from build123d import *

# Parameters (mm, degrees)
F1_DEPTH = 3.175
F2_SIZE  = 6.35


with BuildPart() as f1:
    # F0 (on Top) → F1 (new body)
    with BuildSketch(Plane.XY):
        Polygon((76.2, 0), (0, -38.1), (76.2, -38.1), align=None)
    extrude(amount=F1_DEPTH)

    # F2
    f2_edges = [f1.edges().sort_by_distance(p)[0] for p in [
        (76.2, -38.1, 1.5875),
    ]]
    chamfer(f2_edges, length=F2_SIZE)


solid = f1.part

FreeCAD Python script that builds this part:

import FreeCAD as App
import Part
import Sketcher
Q = App.Units.Quantity


def edges_at(feature, points):
    """Names of the edges that pass closest to the given points."""
    edges = feature.Shape.Edges
    near = lambda p: min(range(len(edges)), key=lambda i: edges[i].distToShape(Part.Vertex(*p))[0])
    return sorted({f"Edge{near(p) + 1}" for p in points})

doc = App.newDocument("Part")
params = doc.addObject("Spreadsheet::Sheet", "Params")
for row, (alias, value) in enumerate([
    ("sketch1_width", "3 in"),
    ("sketch1_height", "1.5 in"),
    ("pad1_length", "0.125 in"),
    ("chamfer_size", "0.25 in"),
], start=1):
    params.set(f"A{row}", alias)
    params.set(f"B{row}", "=" + value)
    params.setAlias(f"B{row}", alias)

body = doc.addObject("PartDesign::Body", "Body")

# Sketch on XY plane
sketch1 = body.newObject("Sketcher::SketchObject", "Sketch")
sketch1.AttachmentSupport = (doc.getObject("XY_Plane"), [""])
sketch1.MapMode = "FlatFace"
sketch1.addGeometry([
    Part.LineSegment(App.Vector(76, 0, 0), App.Vector(0, -38, 0)),
    Part.LineSegment(App.Vector(0, -38, 0), App.Vector(76, -38, 0)),
    Part.LineSegment(App.Vector(76, -38, 0), App.Vector(76, 0, 0)),
], False)
sketch1.addConstraint([
    Sketcher.Constraint("Coincident", 0, 2, 1, 1),
    Sketcher.Constraint("Coincident", 1, 2, 2, 1),
    Sketcher.Constraint("Coincident", 2, 2, 0, 1),
    Sketcher.Constraint("Horizontal", 1),
    Sketcher.Constraint("Vertical", 2),
    Sketcher.Constraint("PointOnObject", 0, 2, -2),
    Sketcher.Constraint("PointOnObject", 2, 2, -1),
    Sketcher.Constraint("DistanceX", 1, 1, 1, 2, Q("3 in")),
    Sketcher.Constraint("DistanceY", 2, 1, 2, 2, Q("1.5 in")),
])
sketch1.setExpression("Constraints[7]", "Params.sketch1_width")
sketch1.setExpression("Constraints[8]", "Params.sketch1_height")
pad1 = body.newObject("PartDesign::Pad", "Pad")
pad1.Profile = sketch1
pad1.setExpression("Length", "Params.pad1_length")
doc.recompute()

chamfer = body.newObject("PartDesign::Chamfer", "Chamfer")
chamfer.Base = (pad1, edges_at(pad1, [(76.2, -38.1, 1.587)]))
chamfer.setExpression("Size", "Params.chamfer_size")

doc.recompute()
